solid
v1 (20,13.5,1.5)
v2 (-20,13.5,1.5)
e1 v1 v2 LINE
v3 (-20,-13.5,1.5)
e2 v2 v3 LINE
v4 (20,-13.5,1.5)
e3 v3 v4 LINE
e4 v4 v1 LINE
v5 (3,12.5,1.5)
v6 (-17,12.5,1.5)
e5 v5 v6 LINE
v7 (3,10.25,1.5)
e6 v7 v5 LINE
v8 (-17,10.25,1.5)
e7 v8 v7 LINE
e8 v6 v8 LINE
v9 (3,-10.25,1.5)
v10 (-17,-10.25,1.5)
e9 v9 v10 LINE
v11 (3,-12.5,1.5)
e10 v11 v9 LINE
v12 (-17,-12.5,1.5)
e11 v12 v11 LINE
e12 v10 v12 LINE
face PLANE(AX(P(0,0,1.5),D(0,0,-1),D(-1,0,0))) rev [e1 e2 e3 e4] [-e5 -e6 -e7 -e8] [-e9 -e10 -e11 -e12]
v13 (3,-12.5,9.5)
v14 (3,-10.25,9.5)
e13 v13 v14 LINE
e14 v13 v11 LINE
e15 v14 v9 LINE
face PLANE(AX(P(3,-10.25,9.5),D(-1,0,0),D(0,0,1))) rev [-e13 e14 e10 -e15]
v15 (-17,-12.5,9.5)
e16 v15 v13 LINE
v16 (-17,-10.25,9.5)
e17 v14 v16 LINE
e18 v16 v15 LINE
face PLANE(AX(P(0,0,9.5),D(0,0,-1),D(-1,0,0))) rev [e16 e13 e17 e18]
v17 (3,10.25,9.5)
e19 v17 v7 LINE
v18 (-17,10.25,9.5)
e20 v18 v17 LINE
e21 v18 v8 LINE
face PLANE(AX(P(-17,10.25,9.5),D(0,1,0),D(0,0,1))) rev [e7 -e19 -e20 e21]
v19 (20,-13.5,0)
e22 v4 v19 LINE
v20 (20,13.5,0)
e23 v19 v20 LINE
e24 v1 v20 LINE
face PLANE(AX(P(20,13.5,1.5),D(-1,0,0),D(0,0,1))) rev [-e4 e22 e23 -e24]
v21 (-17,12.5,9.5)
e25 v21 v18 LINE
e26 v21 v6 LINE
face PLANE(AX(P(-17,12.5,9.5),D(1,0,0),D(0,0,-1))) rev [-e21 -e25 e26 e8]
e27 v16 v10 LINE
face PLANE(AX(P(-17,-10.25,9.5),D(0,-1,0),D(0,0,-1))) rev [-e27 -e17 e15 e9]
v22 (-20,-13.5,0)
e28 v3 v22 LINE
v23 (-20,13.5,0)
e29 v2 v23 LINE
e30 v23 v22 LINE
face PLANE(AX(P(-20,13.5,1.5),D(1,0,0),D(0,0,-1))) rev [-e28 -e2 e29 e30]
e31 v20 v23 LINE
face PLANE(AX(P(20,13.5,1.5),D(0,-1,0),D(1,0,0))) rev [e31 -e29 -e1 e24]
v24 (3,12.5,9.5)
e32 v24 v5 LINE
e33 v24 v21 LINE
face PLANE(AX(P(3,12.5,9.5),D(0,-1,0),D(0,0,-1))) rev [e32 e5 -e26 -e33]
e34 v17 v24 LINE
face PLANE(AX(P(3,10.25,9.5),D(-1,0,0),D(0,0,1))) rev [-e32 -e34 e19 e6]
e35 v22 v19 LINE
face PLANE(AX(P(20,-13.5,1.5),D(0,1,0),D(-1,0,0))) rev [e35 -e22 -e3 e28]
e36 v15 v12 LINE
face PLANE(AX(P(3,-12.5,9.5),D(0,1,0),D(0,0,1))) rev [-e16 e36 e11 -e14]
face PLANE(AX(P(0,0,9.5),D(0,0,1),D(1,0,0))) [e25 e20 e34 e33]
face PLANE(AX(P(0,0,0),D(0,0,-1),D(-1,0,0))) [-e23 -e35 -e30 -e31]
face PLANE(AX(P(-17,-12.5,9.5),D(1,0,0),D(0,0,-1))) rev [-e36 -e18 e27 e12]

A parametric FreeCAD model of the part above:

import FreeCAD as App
import Part
import Sketcher

V = App.Vector

doc = App.newDocument("Part")
body = doc.addObject("PartDesign::Body", "Body")

sketch1 = doc.addObject("Sketcher::SketchObject", "Sketch")
body.addObject(sketch1)
sketch1.AttachmentSupport = (doc.XY_Plane, [""])
sketch1.MapMode = "FlatFace"
sketch1.addGeometry([
    Part.LineSegment(V(-20, 14, 0), V(-20, -14, 0)),
    Part.LineSegment(V(-20, -14, 0), V(20, -14, 0)),
    Part.LineSegment(V(20, -14, 0), V(20, 14, 0)),
    Part.LineSegment(V(20, 14, 0), V(-20, 14, 0)),
], False)
sketch1.addConstraint([
    Sketcher.Constraint("Coincident", 0, 2, 1, 1),
    Sketcher.Constraint("Coincident", 1, 2, 2, 1),
    Sketcher.Constraint("Coincident", 2, 2, 3, 1),
    Sketcher.Constraint("Coincident", 3, 2, 0, 1),
    Sketcher.Constraint("Vertical", 0),
    Sketcher.Constraint("Horizontal", 1),
    Sketcher.Constraint("Vertical", 2),
    Sketcher.Constraint("Horizontal", 3),
    Sketcher.Constraint("Symmetric", 0, 2, 2, 2, -1, 1),
    Sketcher.Constraint("DistanceX", 1, 1, 1, 2, 40.0),
    Sketcher.Constraint("DistanceY", 0, 2, 0, 1, 27.0),
])
pad1 = doc.addObject("PartDesign::Pad", "Pad")
body.addObject(pad1)
pad1.Profile = sketch1
pad1.Length = 1.5

sketch2 = doc.addObject("Sketcher::SketchObject", "Sketch001")
body.addObject(sketch2)
sketch2.AttachmentSupport = (doc.XY_Plane, [""])
sketch2.MapMode = "FlatFace"
sketch2.AttachmentOffset = App.Placement(V(0, 0, 1.5), App.Rotation())
sketch2.addGeometry([
    Part.LineSegment(V(-17, 12.5, 0), V(-17, 10.2, 0)),
    Part.LineSegment(V(-17, 10.2, 0), V(3, 10.2, 0)),
    Part.LineSegment(V(3, 10.2, 0), V(3, 12.5, 0)),
    Part.LineSegment(V(3, 12.5, 0), V(-17, 12.5, 0)),
    Part.LineSegment(V(-17, -10.2, 0), V(-17, -12.5, 0)),
    Part.LineSegment(V(-17, -12.5, 0), V(3, -12.5, 0)),
    Part.LineSegment(V(3, -12.5, 0), V(3, -10.2, 0)),
    Part.LineSegment(V(3, -10.2, 0), V(-17, -10.2, 0)),
], False)
sketch2.addConstraint([
    Sketcher.Constraint("Coincident", 0, 2, 1, 1),
    Sketcher.Constraint("Coincident", 1, 2, 2, 1),
    Sketcher.Constraint("Coincident", 2, 2, 3, 1),
    Sketcher.Constraint("Coincident", 3, 2, 0, 1),
    Sketcher.Constraint("Coincident", 4, 2, 5, 1),
    Sketcher.Constraint("Coincident", 5, 2, 6, 1),
    Sketcher.Constraint("Coincident", 6, 2, 7, 1),
    Sketcher.Constraint("Coincident", 7, 2, 4, 1),
    Sketcher.Constraint("Vertical", 0),
    Sketcher.Constraint("Horizontal", 1),
    Sketcher.Constraint("Vertical", 2),
    Sketcher.Constraint("Horizontal", 3),
    Sketcher.Constraint("Vertical", 4),
    Sketcher.Constraint("Horizontal", 5),
    Sketcher.Constraint("Vertical", 6),
    Sketcher.Constraint("Horizontal", 7),
    Sketcher.Constraint("Symmetric", 3, 2, 4, 2, -1),
    Sketcher.Constraint("Symmetric", 1, 2, 6, 2, -1),
    Sketcher.Constraint("DistanceX", 1, 1, 1, 2, 20.0),
    Sketcher.Constraint("DistanceX", 0, 2, -1, 1, 17.0),
    Sketcher.Constraint("DistanceY", 4, 2, 3, 2, 25.0),
    Sketcher.Constraint("DistanceY", 0, 2, 0, 1, 2.25),
])
pad2 = doc.addObject("PartDesign::Pad", "Pad001")
body.addObject(pad2)
pad2.Profile = sketch2
pad2.Length = 8

doc.recompute()
